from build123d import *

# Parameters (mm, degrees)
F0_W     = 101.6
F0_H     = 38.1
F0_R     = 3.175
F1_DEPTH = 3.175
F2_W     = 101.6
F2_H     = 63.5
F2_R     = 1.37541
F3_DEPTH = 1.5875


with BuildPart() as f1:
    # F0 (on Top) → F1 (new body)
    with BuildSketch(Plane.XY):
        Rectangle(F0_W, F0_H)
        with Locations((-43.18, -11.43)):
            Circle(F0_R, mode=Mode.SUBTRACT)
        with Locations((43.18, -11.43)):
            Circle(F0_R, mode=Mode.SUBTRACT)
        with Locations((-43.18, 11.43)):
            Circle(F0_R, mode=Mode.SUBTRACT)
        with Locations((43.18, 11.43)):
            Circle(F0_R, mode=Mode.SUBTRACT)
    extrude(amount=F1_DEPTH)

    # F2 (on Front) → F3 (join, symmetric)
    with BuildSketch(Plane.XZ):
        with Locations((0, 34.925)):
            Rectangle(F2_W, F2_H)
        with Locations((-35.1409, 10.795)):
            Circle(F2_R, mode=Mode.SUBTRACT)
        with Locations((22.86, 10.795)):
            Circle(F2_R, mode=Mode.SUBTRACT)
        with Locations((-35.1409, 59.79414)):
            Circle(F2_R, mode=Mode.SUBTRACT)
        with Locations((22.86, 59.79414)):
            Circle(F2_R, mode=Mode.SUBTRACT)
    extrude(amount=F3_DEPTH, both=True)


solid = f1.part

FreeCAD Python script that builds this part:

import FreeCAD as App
import Part
import Sketcher
from FreeCAD import Vector
Q = App.Units.Quantity


def add_polygon(sketch, points):
    """Adds a closed chain of lines whose ends are joined by coincident constraints."""
    first, n = sketch.GeometryCount, len(points)
    for a, b in zip(points, points[1:] + points[:1]):
        sketch.addGeometry(Part.LineSegment(App.Vector(*a, 0), App.Vector(*b, 0)), False)
    for i in range(n):
        sketch.addConstraint(Sketcher.Constraint("Coincident", first + i, 2, first + (i + 1) % n, 1))

doc = App.newDocument("Part")
params = doc.addObject("Spreadsheet::Sheet", "Params")
for row, (alias, value) in enumerate([
    ("sketch1_diameter", "0.25 in"),
    ("sketch1_width", "4 in"),
    ("sketch1_height", "1.5 in"),
    ("pad1_length", "0.125 in"),
    ("sketch2_width", "4 in"),
    ("sketch2_height", "2.5 in"),
    ("pad2_length", "0.125 in"),
], start=1):
    params.set(f"A{row}", alias)
    params.set(f"B{row}", "=" + value)
    params.setAlias(f"B{row}", alias)

body = doc.addObject("PartDesign::Body", "Body")

sketch1 = body.newObject("Sketcher::SketchObject", "Sketch")
sketch1.AttachmentSupport = (doc.getObject("XY_Plane"), [""])
sketch1.MapMode = "FlatFace"
add_polygon(sketch1, [(-50.8, 19.1), (-50.8, -19.1), (50.8, -19.1), (50.8, 19.1)])
sketch1.addGeometry(Part.Circle(Vector(-43.2, -11.4, 0), Vector(0, 0, 1), 3.2), False)
sketch1.addGeometry(Part.Circle(Vector(43.2, -11.4, 0), Vector(0, 0, 1), 3.2), False)
sketch1.addGeometry(Part.Circle(Vector(-43.2, 11.4, 0), Vector(0, 0, 1), 3.2), False)
sketch1.addGeometry(Part.Circle(Vector(43.2, 11.4, 0), Vector(0, 0, 1), 3.2), False)
sketch1.addConstraint(Sketcher.Constraint("Vertical", 0))
sketch1.addConstraint(Sketcher.Constraint("Horizontal", 1))
sketch1.addConstraint(Sketcher.Constraint("Vertical", 2))
sketch1.addConstraint(Sketcher.Constraint("Horizontal", 3))
sketch1.addConstraint(Sketcher.Constraint("Equal", 4, 5))
sketch1.addConstraint(Sketcher.Constraint("Equal", 5, 6))
sketch1.addConstraint(Sketcher.Constraint("Equal", 6, 7))
sketch1.addConstraint(Sketcher.Constraint("Symmetric", 5, 3, 6, 3, -1, 1))
sketch1.addConstraint(Sketcher.Constraint("Symmetric", 4, 3, 7, 3, -1, 1))
sketch1.addConstraint(Sketcher.Constraint("Symmetric", 0, 2, 2, 2, -1, 1))
sketch1.addConstraint(Sketcher.Constraint("Symmetric", 4, 3, 5, 3, -2))
sketch1.addConstraint(Sketcher.Constraint("Diameter", 4, Q("0.25 in")))
sketch1.addConstraint(Sketcher.Constraint("DistanceX", 1, 1, 1, 2, Q("4 in")))
sketch1.addConstraint(Sketcher.Constraint("DistanceY", 0, 2, 0, 1, Q("1.5 in")))
sketch1.addConstraint(Sketcher.Constraint("DistanceX", 4, 3, -1, 1, Q("1.7 in")))
sketch1.addConstraint(Sketcher.Constraint("DistanceY", 4, 3, 6, 3, Q("0.9 in")))
sketch1.setExpression("Constraints[15]", "Params.sketch1_diameter")
sketch1.setExpression("Constraints[16]", "Params.sketch1_width")
sketch1.setExpression("Constraints[17]", "Params.sketch1_height")
pad1 = body.newObject("PartDesign::Pad", "Pad")
pad1.Profile = sketch1
pad1.setExpression("Length", "Params.pad1_length")

sketch2 = body.newObject("Sketcher::SketchObject", "Sketch001")
sketch2.AttachmentSupport = (doc.getObject("XZ_Plane"), [""])
sketch2.MapMode = "FlatFace"
add_polygon(sketch2, [(-50.8, 66.7), (-50.8, 3.2), (50.8, 3.2), (50.8, 66.7)])
sketch2.addGeometry(Part.Circle(Vector(-35.1, 10.8, 0), Vector(0, 0, 1), 1.4), False)
sketch2.addGeometry(Part.Circle(Vector(22.9, 10.8, 0), Vector(0, 0, 1), 1.4), False)
sketch2.addGeometry(Part.Circle(Vector(-35.1, 59.8, 0), Vector(0, 0, 1), 1.4), False)
sketch2.addGeometry(Part.Circle(Vector(22.9, 59.8, 0), Vector(0, 0, 1), 1.4), False)
sketch2.addConstraint(Sketcher.Constraint("Vertical", 0))
sketch2.addConstraint(Sketcher.Constraint("Horizontal", 1))
sketch2.addConstraint(Sketcher.Constraint("Vertical", 2))
sketch2.addConstraint(Sketcher.Constraint("Horizontal", 3))
sketch2.addConstraint(Sketcher.Constraint("Equal", 4, 5))
sketch2.addConstraint(Sketcher.Constraint("Equal", 5, 6))
sketch2.addConstraint(Sketcher.Constraint("Equal", 6, 7))
sketch2.addConstraint(Sketcher.Constraint("Horizontal", 4, 3, 5, 3))
sketch2.addConstraint(Sketcher.Constraint("Horizontal", 6, 3, 7, 3))
sketch2.addConstraint(Sketcher.Constraint("Vertical", 4, 3, 6, 3))
sketch2.addConstraint(Sketcher.Constraint("Vertical", 5, 3, 7, 3))
sketch2.addConstraint(Sketcher.Constraint("DistanceX", 1, 1, 1, 2, Q("4 in")))
sketch2.addConstraint(Sketcher.Constraint("DistanceY", 0, 2, 0, 1, Q("2.5 in")))
sketch2.addConstraint(Sketcher.Constraint("DistanceX", 0, 2, -1, 1, Q("2 in")))
sketch2.addConstraint(Sketcher.Constraint("Diameter", 4, Q("0.1083 in")))
sketch2.addConstraint(Sketcher.Constraint("DistanceX", -1, 1, 5, 3, Q("0.9 in")))
sketch2.addConstraint(Sketcher.Constraint("DistanceY", 0, 2, 4, 3, Q("0.3 in")))
sketch2.addConstraint(Sketcher.Constraint("DistanceY", -1, 1, 4, 3, Q("0.425 in")))
sketch2.addConstraint(Sketcher.Constraint("DistanceX", 4, 3, -1, 1, Q("1.3835 in")))
sketch2.addConstraint(Sketcher.Constraint("DistanceY", -1, 1, 6, 3, Q("2.3541 in")))
sketch2.setExpression("Constraints[15]", "Params.sketch2_width")
sketch2.setExpression("Constraints[16]", "Params.sketch2_height")
pad2 = body.newObject("PartDesign::Pad", "Pad001")
pad2.Profile = sketch2
pad2.setExpression("Length", "Params.pad2_length")
pad2.Midplane = True

doc.recompute()
